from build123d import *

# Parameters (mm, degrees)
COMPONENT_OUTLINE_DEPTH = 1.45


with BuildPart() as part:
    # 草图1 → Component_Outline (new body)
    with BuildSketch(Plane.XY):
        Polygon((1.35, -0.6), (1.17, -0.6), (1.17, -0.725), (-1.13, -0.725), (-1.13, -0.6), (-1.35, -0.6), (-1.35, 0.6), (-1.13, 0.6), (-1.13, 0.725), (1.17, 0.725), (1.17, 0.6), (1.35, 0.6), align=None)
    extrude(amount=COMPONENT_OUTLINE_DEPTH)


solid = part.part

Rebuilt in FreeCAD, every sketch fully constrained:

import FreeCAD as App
import Part
import Sketcher
Q = App.Units.Quantity


def add_polygon(sketch, points):
    """Adds a closed chain of lines whose ends are joined by coincident constraints."""
    first, n = sketch.GeometryCount, len(points)
    for a, b in zip(points, points[1:] + points[:1]):
        sketch.addGeometry(Part.LineSegment(App.Vector(*a, 0), App.Vector(*b, 0)), False)
    for i in range(n):
        sketch.addConstraint(Sketcher.Constraint("Coincident", first + i, 2, first + (i + 1) % n, 1))

doc = App.newDocument("Part")
body = doc.addObject("PartDesign::Body", "Body")

# Sketch on XY plane
sketch1 = doc.addObject("Sketcher::SketchObject", "Sketch")
body.addObject(sketch1)
sketch1.AttachmentSupport = (doc.XY_Plane, [""])
sketch1.MapMode = "FlatFace"
add_polygon(sketch1, [(1.17, -0.6), (1.35, -0.6), (1.35, 0.6), (1.17, 0.6), (1.17, 0.725), (-1.13, 0.725), (-1.13, 0.6), (-1.35, 0.6), (-1.35, -0.6), (-1.13, -0.6), (-1.13, -0.725), (1.17, -0.725)])  # lines 0-11
sketch1.addConstraint(Sketcher.Constraint("Horizontal", 0))
sketch1.addConstraint(Sketcher.Constraint("Vertical", 1))
sketch1.addConstraint(Sketcher.Constraint("Horizontal", 2))
sketch1.addConstraint(Sketcher.Constraint("Vertical", 3))
sketch1.addConstraint(Sketcher.Constraint("Horizontal", 4))
sketch1.addConstraint(Sketcher.Constraint("Vertical", 5))
sketch1.addConstraint(Sketcher.Constraint("Horizontal", 6))
sketch1.addConstraint(Sketcher.Constraint("Vertical", 7))
sketch1.addConstraint(Sketcher.Constraint("Horizontal", 8))
sketch1.addConstraint(Sketcher.Constraint("Vertical", 9))
sketch1.addConstraint(Sketcher.Constraint("Horizontal", 10))
sketch1.addConstraint(Sketcher.Constraint("Vertical", 11))
sketch1.addConstraint(Sketcher.Constraint("Symmetric", 0, 2, 6, 2, -1, 1))
sketch1.addConstraint(Sketcher.Constraint("Symmetric", 5, 2, 8, 2, -1))
sketch1.addConstraint(Sketcher.Constraint("Symmetric", 3, 2, 10, 2, -1))
sketch1.addConstraint(Sketcher.Constraint("Horizontal", 2, 2, 5, 2))
sketch1.addConstraint(Sketcher.Constraint("DistanceX", 4, 2, 4, 1, Q("2.3 mm")))
sketch1.addConstraint(Sketcher.Constraint("DistanceY", 1, 1, 1, 2, Q("1.2 mm")))
sketch1.addConstraint(Sketcher.Constraint("DistanceX", 0, 1, 0, 2, Q("0.18 mm")))
sketch1.addConstraint(Sketcher.Constraint("DistanceX", 6, 2, 6, 1, Q("0.22 mm")))
sketch1.addConstraint(Sketcher.Constraint("DistanceY", 3, 1, 3, 2, Q("0.125 mm")))
pad1 = doc.addObject("PartDesign::Pad", "Pad")
body.addObject(pad1)
pad1.Profile = sketch1
pad1.Length = 1.45

doc.recompute()
